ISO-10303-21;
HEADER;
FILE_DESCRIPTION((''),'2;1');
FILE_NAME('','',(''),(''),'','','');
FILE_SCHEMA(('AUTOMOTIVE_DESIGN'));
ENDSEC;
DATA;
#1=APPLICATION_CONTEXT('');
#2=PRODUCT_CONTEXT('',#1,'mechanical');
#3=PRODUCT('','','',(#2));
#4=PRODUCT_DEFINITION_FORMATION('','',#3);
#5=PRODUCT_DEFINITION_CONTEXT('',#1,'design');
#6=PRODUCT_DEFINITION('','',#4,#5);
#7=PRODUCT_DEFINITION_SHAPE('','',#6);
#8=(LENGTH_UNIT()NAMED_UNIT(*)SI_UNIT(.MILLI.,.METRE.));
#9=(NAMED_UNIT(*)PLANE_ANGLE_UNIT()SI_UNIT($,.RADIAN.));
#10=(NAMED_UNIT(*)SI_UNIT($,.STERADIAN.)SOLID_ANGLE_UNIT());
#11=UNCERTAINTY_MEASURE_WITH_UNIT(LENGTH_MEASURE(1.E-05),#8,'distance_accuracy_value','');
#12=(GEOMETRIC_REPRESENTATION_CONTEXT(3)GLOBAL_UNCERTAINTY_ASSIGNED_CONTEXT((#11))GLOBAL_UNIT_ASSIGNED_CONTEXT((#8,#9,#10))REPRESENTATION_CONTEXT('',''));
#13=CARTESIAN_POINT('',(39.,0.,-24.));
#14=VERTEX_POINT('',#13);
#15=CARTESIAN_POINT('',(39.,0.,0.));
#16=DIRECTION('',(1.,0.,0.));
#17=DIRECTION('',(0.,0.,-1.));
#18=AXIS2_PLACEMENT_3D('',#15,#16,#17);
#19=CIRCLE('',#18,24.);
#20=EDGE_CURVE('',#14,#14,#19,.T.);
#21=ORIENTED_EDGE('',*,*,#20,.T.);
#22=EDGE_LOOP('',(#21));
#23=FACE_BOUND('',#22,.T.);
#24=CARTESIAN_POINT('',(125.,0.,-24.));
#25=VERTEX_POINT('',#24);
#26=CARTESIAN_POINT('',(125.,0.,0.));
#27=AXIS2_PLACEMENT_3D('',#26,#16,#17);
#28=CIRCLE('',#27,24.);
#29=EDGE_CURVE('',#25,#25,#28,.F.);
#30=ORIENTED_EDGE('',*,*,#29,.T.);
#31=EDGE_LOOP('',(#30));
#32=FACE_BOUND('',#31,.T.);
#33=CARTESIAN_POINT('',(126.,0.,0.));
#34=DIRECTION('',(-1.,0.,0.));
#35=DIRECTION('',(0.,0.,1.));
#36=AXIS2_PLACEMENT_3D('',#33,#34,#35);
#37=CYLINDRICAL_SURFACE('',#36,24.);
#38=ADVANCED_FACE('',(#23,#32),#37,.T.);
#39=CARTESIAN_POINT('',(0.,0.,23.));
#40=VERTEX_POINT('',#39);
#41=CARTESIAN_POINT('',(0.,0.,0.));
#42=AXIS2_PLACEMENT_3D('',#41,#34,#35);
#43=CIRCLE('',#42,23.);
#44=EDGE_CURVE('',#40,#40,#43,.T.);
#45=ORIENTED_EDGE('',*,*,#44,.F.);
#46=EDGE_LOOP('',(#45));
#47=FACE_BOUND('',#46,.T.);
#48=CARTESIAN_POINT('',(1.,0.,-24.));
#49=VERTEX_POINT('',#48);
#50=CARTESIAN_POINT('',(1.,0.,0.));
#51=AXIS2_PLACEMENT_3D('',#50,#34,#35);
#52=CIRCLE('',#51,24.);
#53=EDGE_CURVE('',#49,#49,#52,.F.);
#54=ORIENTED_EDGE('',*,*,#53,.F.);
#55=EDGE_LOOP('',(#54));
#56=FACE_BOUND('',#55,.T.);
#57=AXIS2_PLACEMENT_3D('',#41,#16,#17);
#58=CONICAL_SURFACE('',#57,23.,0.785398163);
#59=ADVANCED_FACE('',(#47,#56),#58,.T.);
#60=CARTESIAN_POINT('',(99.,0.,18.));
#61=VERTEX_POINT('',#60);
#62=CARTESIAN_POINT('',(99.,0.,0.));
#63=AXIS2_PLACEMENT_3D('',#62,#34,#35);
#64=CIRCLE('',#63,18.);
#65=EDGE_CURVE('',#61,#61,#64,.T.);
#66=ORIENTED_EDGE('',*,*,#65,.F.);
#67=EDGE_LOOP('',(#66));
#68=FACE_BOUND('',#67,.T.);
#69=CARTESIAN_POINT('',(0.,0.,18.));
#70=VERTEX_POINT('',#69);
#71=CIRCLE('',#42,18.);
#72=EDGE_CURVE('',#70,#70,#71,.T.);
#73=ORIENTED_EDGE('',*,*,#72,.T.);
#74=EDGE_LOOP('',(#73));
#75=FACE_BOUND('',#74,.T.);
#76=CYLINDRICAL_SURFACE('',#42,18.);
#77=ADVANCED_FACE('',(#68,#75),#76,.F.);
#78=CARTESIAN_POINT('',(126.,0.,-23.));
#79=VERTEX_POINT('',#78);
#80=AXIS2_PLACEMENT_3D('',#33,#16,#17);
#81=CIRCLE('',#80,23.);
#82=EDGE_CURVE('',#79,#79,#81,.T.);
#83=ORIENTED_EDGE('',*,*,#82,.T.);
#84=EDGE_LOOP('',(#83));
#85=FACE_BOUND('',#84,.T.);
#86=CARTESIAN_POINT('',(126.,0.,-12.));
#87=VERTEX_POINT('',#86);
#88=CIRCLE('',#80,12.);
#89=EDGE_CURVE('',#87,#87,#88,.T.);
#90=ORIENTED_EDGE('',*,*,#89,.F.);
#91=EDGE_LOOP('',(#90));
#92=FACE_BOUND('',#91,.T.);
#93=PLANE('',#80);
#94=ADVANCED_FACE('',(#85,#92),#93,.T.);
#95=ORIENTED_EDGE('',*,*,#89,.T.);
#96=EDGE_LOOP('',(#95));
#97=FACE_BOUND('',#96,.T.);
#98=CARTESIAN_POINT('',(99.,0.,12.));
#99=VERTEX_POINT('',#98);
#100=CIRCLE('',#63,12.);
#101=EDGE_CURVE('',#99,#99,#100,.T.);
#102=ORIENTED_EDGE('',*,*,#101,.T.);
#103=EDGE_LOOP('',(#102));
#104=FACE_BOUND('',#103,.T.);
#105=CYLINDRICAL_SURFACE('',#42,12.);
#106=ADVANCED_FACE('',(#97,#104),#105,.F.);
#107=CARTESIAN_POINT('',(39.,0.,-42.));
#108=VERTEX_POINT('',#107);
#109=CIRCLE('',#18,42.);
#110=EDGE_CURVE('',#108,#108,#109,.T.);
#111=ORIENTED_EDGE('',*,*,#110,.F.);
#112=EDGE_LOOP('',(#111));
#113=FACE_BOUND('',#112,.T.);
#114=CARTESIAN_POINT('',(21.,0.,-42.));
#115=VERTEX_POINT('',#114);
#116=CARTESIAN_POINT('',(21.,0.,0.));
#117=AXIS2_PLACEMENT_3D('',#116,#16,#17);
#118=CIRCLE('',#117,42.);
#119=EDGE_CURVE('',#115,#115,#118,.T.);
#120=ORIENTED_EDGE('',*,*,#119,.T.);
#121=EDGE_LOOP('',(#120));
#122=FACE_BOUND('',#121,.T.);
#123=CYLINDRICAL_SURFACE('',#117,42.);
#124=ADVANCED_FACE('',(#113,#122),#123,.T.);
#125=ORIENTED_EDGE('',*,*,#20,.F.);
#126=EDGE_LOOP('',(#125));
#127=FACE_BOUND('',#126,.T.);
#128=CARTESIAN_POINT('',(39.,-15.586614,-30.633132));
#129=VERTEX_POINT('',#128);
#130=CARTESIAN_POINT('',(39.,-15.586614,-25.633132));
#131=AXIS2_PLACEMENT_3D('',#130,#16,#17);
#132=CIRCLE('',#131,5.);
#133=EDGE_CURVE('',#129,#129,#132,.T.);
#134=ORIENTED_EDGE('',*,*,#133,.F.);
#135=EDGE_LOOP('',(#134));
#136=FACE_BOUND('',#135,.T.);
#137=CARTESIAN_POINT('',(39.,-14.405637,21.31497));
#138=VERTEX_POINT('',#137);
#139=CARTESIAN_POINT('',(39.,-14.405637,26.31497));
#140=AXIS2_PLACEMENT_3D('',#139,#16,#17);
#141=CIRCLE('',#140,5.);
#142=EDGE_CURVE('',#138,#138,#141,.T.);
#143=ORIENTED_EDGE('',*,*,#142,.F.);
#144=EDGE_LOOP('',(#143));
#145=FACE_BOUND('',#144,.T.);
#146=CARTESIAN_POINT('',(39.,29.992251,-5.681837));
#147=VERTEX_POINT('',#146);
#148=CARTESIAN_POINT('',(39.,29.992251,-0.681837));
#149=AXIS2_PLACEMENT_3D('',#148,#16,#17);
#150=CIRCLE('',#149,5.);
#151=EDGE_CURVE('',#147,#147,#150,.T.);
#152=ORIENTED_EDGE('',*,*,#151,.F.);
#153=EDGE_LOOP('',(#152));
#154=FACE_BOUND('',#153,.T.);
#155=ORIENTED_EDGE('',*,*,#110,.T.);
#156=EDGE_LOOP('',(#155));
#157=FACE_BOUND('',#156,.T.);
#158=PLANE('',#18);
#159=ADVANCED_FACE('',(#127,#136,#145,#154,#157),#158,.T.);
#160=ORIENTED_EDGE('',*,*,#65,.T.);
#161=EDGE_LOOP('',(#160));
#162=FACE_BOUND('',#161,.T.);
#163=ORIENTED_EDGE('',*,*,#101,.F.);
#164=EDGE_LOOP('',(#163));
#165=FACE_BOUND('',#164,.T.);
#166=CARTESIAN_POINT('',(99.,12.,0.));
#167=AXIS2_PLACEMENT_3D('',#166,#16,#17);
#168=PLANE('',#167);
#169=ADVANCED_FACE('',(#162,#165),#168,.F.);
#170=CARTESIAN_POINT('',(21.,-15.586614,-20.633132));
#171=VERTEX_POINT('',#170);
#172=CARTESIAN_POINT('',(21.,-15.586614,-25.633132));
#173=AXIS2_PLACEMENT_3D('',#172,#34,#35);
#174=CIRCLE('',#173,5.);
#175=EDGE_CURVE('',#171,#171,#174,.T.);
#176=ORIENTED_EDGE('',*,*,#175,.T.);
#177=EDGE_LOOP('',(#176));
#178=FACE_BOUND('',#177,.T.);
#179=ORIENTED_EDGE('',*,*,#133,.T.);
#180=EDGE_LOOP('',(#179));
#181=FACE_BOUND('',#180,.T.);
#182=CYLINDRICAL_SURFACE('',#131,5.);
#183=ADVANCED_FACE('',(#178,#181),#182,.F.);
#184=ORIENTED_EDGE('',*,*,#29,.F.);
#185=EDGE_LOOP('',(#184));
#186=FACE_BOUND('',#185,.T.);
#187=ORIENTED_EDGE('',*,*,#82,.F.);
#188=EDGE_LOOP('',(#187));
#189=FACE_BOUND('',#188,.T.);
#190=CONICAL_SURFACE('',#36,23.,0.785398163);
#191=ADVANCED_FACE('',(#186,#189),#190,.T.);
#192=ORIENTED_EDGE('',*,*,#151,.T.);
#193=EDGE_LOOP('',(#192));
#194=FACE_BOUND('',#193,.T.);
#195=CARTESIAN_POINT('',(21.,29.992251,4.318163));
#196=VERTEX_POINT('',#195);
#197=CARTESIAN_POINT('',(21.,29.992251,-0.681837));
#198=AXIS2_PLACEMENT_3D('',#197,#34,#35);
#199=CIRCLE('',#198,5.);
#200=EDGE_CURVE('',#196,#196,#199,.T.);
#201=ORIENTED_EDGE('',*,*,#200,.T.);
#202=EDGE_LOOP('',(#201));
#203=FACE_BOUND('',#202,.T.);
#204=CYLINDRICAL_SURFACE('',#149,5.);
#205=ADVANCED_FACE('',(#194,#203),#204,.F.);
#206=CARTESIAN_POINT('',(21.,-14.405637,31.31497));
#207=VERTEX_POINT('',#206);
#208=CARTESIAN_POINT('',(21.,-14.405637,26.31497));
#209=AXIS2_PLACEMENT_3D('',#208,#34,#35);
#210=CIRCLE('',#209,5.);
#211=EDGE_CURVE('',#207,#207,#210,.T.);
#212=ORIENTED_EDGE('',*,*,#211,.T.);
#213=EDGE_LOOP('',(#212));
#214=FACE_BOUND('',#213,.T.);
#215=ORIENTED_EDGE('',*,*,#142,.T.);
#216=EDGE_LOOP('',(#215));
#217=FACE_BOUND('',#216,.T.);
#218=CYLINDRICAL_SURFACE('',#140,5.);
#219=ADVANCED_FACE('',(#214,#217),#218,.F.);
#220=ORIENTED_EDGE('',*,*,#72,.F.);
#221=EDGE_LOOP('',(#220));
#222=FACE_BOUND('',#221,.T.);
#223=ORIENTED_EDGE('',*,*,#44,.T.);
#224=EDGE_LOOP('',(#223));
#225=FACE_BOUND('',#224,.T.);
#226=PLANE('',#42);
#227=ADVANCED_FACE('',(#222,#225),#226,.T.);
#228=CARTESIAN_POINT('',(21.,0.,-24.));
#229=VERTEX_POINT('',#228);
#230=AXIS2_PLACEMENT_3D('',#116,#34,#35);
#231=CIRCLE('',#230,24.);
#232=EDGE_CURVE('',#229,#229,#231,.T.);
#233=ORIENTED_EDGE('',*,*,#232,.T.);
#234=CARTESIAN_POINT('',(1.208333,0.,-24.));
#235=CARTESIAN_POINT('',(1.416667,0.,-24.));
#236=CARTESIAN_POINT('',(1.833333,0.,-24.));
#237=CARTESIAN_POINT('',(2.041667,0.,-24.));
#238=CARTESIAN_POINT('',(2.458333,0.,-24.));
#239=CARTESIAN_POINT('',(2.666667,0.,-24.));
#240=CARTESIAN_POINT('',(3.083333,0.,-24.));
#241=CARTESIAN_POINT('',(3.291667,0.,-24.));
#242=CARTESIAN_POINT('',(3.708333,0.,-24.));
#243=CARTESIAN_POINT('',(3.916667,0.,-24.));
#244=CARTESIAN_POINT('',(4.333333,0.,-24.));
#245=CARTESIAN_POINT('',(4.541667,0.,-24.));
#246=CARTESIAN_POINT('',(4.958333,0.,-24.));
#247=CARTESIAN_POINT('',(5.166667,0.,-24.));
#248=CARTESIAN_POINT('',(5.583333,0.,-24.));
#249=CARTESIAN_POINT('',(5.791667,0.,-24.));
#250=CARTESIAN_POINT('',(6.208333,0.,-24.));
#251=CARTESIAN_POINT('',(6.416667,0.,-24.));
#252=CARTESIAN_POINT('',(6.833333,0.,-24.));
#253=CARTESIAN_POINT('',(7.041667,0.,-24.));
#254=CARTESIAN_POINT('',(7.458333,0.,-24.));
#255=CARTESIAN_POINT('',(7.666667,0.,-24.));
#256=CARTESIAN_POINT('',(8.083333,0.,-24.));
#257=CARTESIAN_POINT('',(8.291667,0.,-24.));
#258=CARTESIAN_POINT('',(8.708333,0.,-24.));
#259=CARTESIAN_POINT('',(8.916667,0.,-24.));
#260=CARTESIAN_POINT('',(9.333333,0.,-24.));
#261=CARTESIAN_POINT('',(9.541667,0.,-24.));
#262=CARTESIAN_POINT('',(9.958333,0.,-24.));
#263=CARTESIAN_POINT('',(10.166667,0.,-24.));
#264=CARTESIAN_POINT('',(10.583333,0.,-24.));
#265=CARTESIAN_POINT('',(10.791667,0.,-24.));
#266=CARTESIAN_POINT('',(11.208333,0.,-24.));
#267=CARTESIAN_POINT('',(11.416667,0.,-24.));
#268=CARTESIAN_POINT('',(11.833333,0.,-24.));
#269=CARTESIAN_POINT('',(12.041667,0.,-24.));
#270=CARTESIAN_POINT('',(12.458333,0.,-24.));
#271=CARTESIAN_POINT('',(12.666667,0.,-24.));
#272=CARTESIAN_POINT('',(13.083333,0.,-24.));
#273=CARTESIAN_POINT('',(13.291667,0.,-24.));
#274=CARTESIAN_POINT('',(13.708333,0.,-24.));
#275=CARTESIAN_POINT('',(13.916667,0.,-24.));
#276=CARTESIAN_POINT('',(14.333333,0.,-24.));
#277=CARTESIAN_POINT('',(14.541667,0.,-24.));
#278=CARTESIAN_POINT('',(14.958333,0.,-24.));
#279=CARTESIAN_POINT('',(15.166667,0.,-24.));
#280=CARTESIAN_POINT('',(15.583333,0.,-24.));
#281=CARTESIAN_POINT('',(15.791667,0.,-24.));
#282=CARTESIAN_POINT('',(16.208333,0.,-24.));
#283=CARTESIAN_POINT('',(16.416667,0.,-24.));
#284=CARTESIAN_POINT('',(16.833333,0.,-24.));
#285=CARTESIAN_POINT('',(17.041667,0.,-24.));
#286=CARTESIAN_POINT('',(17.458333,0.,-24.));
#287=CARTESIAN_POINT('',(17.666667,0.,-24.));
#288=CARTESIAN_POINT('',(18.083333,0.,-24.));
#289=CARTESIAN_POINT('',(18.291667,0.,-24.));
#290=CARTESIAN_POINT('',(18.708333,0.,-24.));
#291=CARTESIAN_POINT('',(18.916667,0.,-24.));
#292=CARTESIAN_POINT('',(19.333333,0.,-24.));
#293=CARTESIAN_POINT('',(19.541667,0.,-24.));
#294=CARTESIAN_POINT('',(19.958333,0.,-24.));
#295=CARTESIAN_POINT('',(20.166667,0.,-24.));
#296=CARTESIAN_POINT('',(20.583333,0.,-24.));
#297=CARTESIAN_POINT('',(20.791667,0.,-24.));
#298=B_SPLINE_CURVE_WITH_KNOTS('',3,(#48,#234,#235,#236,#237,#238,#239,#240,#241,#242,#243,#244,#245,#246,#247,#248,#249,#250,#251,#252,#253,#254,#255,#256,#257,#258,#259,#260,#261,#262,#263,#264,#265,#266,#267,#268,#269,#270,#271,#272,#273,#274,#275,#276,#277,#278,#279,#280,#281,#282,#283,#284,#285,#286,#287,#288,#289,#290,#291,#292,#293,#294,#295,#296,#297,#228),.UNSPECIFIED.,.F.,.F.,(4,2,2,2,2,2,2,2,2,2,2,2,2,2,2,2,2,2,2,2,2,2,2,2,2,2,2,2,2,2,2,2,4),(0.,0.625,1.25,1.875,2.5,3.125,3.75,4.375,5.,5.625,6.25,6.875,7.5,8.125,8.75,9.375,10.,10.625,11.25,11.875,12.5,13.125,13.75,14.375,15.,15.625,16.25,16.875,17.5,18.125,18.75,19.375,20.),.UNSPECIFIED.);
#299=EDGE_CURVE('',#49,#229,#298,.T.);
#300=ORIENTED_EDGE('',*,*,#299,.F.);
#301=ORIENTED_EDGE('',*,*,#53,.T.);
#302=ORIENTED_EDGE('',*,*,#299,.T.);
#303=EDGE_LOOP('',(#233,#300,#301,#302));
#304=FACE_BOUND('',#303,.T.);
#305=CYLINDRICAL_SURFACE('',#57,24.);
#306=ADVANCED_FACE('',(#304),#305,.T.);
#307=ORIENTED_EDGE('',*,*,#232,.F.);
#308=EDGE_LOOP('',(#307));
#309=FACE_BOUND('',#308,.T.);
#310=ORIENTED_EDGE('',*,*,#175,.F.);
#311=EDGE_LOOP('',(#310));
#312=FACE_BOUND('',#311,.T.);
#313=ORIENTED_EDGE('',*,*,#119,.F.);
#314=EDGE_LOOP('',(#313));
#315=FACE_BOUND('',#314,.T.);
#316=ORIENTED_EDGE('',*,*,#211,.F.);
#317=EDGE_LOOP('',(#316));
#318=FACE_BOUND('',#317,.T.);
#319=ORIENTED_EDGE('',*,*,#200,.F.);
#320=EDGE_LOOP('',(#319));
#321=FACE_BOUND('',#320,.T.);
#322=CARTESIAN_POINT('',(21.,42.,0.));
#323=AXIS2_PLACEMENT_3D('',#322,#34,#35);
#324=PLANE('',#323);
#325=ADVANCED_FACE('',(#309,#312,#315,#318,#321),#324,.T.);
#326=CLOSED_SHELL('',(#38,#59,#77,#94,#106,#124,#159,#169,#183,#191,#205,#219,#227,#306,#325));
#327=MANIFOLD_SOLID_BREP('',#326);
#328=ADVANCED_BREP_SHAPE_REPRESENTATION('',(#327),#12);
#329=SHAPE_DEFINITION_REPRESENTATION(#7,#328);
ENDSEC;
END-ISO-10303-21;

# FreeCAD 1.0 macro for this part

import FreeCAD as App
import Part
import Sketcher
from FreeCAD import Vector
Q = App.Units.Quantity


def edges_at(feature, points):
    """Names of the edges that pass closest to the given points."""
    edges = feature.Shape.Edges
    near = lambda p: min(range(len(edges)), key=lambda i: edges[i].distToShape(Part.Vertex(*p))[0])
    return sorted({f"Edge{near(p) + 1}" for p in points})

doc = App.newDocument("Part")
body = doc.addObject("PartDesign::Body", "Body")

# Sketch on XY plane
sketch1 = body.newObject("Sketcher::SketchObject", "Sketch")
sketch1.AttachmentSupport = (doc.getObject("XY_Plane"), [""])
sketch1.MapMode = "FlatFace"
sketch1.addGeometry(Part.LineSegment(Vector(21, 42, 0), Vector(21, 0, 0)), False)
sketch1.addGeometry(Part.LineSegment(Vector(21, 0, 0), Vector(39, 0, 0)), False)
sketch1.addGeometry(Part.LineSegment(Vector(39, 0, 0), Vector(39, 42, 0)), False)
sketch1.addGeometry(Part.LineSegment(Vector(39, 42, 0), Vector(21, 42, 0)), False)
sketch1.addConstraint(Sketcher.Constraint("Coincident", 0, 2, 1, 1))
sketch1.addConstraint(Sketcher.Constraint("Coincident", 1, 2, 2, 1))
sketch1.addConstraint(Sketcher.Constraint("Coincident", 2, 2, 3, 1))
sketch1.addConstraint(Sketcher.Constraint("Coincident", 3, 2, 0, 1))
sketch1.addConstraint(Sketcher.Constraint("Vertical", 0))
sketch1.addConstraint(Sketcher.Constraint("Horizontal", 1))
sketch1.addConstraint(Sketcher.Constraint("Vertical", 2))
sketch1.addConstraint(Sketcher.Constraint("Horizontal", 3))
sketch1.addConstraint(Sketcher.Constraint("PointOnObject", 0, 2, -1))
sketch1.addConstraint(Sketcher.Constraint("DistanceX", 1, 1, 1, 2, Q("18 mm")))
sketch1.addConstraint(Sketcher.Constraint("DistanceY", 0, 2, 0, 1, Q("42 mm")))
sketch1.addConstraint(Sketcher.Constraint("DistanceX", -1, 1, 0, 2, Q("21 mm")))
revolution = body.newObject("PartDesign::Revolution", "Revolution")
revolution.Profile = sketch1
revolution.ReferenceAxis = (sketch1, ["H_Axis"])
revolution.Angle = 360

# Sketch on YZ plane
sketch2 = body.newObject("Sketcher::SketchObject", "Sketch001")
sketch2.AttachmentSupport = (doc.getObject("YZ_Plane"), [""])
sketch2.MapMode = "FlatFace"
sketch2.AttachmentOffset = App.Placement(Vector(0, 0, 21), App.Rotation())
sketch2.addGeometry(Part.Circle(Vector(0, 0, 0), Vector(0, 0, 1), 24), False)
sketch2.addConstraint(Sketcher.Constraint("Coincident", 0, 3, -1, 1))
sketch2.addConstraint(Sketcher.Constraint("Diameter", 0, Q("48 mm")))
pad1 = body.newObject("PartDesign::Pad", "Pad")
pad1.Profile = sketch2
pad1.Length = 21
pad1.Reversed = True

# Sketch on YZ plane
sketch3 = body.newObject("Sketcher::SketchObject", "Sketch002")
sketch3.AttachmentSupport = (doc.getObject("YZ_Plane"), [""])
sketch3.MapMode = "FlatFace"
sketch3.AttachmentOffset = App.Placement(Vector(0, 0, 126), App.Rotation())
sketch3.addGeometry(Part.Circle(Vector(0, 0, 0), Vector(0, 0, 1), 24), False)
sketch3.addConstraint(Sketcher.Constraint("Coincident", 0, 3, -1, 1))
sketch3.addConstraint(Sketcher.Constraint("Diameter", 0, Q("48 mm")))
pad2 = body.newObject("PartDesign::Pad", "Pad001")
pad2.Profile = sketch3
pad2.Length = 87
pad2.Reversed = True

# Sketch on YZ plane
sketch4 = body.newObject("Sketcher::SketchObject", "Sketch003")
sketch4.AttachmentSupport = (doc.getObject("YZ_Plane"), [""])
sketch4.MapMode = "FlatFace"
sketch4.AttachmentOffset = App.Placement(Vector(0, 0, 39), App.Rotation())
sketch4.addGeometry(Part.Circle(Vector(-16, -26, 0), Vector(0, 0, 1), 5), False)
sketch4.addConstraint(Sketcher.Constraint("Diameter", 0, Q("10 mm")))
sketch4.addConstraint(Sketcher.Constraint("DistanceX", 0, 3, -1, 1, Q("15.586614 mm")))
sketch4.addConstraint(Sketcher.Constraint("DistanceY", 0, 3, -1, 1, Q("25.633132 mm")))
doc.recompute()
hole = body.newObject("PartDesign::Hole", "Hole")
hole.Profile = sketch4
hole.ThreadType = "None"
hole.Diameter = 10
hole.DepthType = "ThroughAll"

# Sketch on YZ plane
sketch5 = body.newObject("Sketcher::SketchObject", "Sketch004")
sketch5.AttachmentSupport = (doc.getObject("YZ_Plane"), [""])
sketch5.MapMode = "FlatFace"
sketch5.AttachmentOffset = App.Placement(Vector(0, 0, 39), App.Rotation())
sketch5.addGeometry(Part.Circle(Vector(30, -1, 0), Vector(0, 0, 1), 5), False)
sketch5.addConstraint(Sketcher.Constraint("Diameter", 0, Q("10 mm")))
sketch5.addConstraint(Sketcher.Constraint("DistanceX", -1, 1, 0, 3, Q("29.992251 mm")))
sketch5.addConstraint(Sketcher.Constraint("DistanceY", 0, 3, -1, 1, Q("0.681837 mm")))
doc.recompute()
hole2 = body.newObject("PartDesign::Hole", "Hole001")
hole2.Profile = sketch5
hole2.ThreadType = "None"
hole2.Diameter = 10
hole2.DepthType = "ThroughAll"

# Sketch on YZ plane
sketch6 = body.newObject("Sketcher::SketchObject", "Sketch005")
sketch6.AttachmentSupport = (doc.getObject("YZ_Plane"), [""])
sketch6.MapMode = "FlatFace"
sketch6.AttachmentOffset = App.Placement(Vector(0, 0, 39), App.Rotation())
sketch6.addGeometry(Part.Circle(Vector(-14, 26, 0), Vector(0, 0, 1), 5), False)
sketch6.addConstraint(Sketcher.Constraint("Diameter", 0, Q("10 mm")))
sketch6.addConstraint(Sketcher.Constraint("DistanceY", -1, 1, 0, 3, Q("26.31497 mm")))
sketch6.addConstraint(Sketcher.Constraint("DistanceX", 0, 3, -1, 1, Q("14.405637 mm")))
doc.recompute()
hole3 = body.newObject("PartDesign::Hole", "Hole002")
hole3.Profile = sketch6
hole3.ThreadType = "None"
hole3.Diameter = 10
hole3.DepthType = "ThroughAll"

# Sketch on YZ plane
sketch7 = body.newObject("Sketcher::SketchObject", "Sketch006")
sketch7.AttachmentSupport = (doc.getObject("YZ_Plane"), [""])
sketch7.MapMode = "FlatFace"
sketch7.addGeometry(Part.Circle(Vector(0, 0, 0), Vector(0, 0, 1), 12), False)
sketch7.addConstraint(Sketcher.Constraint("Coincident", 0, 3, -1, 1))
sketch7.addConstraint(Sketcher.Constraint("Diameter", 0, Q("24 mm")))
doc.recompute()
hole4 = body.newObject("PartDesign::Hole", "Hole003")
hole4.Profile = sketch7
hole4.ThreadType = "None"
hole4.Diameter = 24
hole4.DepthType = "ThroughAll"
hole4.HoleCutType = "Counterbore"
hole4.HoleCutDiameter = 36
hole4.HoleCutDepth = 99
hole4.Reversed = True
doc.recompute()

chamfer = body.newObject("PartDesign::Chamfer", "Chamfer")
chamfer.Base = (hole4, edges_at(hole4, [(126, 0, 24), (0, 0, 24)]))
chamfer.Size = 1

doc.recompute()
